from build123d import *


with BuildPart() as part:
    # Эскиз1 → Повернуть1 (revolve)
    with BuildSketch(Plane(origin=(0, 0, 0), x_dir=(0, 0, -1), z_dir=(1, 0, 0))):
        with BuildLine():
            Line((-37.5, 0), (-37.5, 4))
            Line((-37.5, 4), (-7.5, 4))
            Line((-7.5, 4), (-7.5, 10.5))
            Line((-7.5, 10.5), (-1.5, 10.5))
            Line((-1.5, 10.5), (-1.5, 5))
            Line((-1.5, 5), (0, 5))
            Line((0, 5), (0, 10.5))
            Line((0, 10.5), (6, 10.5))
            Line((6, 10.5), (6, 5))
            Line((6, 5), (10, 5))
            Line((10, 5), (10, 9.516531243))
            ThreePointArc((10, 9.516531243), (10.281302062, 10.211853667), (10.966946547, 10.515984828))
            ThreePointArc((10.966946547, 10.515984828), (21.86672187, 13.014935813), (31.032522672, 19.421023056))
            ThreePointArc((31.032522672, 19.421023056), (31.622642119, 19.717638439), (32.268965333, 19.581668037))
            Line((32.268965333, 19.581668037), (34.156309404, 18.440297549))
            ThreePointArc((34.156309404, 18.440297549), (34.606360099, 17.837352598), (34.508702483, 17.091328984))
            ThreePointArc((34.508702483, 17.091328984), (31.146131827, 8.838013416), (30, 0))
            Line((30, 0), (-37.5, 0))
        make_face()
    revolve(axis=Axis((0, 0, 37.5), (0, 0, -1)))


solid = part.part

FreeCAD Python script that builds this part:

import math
import FreeCAD as App
import Part
import Sketcher

doc = App.newDocument("Part")
params = doc.addObject("Spreadsheet::Sheet", "Params")
for row, (alias, value) in enumerate([
    ("sketch1_radius", "1 mm"),
    ("sketch1_width", "4 mm"),
    ("sketch1_height", "6 mm"),
    ("sketch1_height2", "30 mm"),
    ("sketch1_width2", "5.5 mm"),
    ("revolution_angle", "360 deg"),
], start=1):
    params.set(f"A{row}", alias)
    params.set(f"B{row}", "=" + value)
    params.setAlias(f"B{row}", alias)

body = doc.addObject("PartDesign::Body", "Body")

# Sketch on YZ plane
sketch1 = doc.addObject("Sketcher::SketchObject", "Sketch")
body.addObject(sketch1)
sketch1.AttachmentSupport = (doc.YZ_Plane, [""])
sketch1.MapMode = "FlatFace"
sketch1.addGeometry(Part.LineSegment(App.Vector(4, 37.5, 0), App.Vector(0, 37.5, 0)), False)
sketch1.addGeometry(Part.LineSegment(App.Vector(0, 37.5, 0), App.Vector(0, -30, 0)), False)
sketch1.addGeometry(Part.ArcOfCircle(Part.Circle(App.Vector(0, -64.6, 0), App.Vector(0, 0, 1), 34.6), math.radians(60), math.radians(90)), False)
sketch1.addGeometry(Part.ArcOfCircle(Part.Circle(App.Vector(17.6, -33.6, 0), App.Vector(0, 0, 1), 1), math.radians(-120), math.radians(-31)), False)
sketch1.addGeometry(Part.LineSegment(App.Vector(18.4, -34.2, 0), App.Vector(19.6, -32.3, 0)), False)
sketch1.addGeometry(Part.ArcOfCircle(Part.Circle(App.Vector(18.7, -31.8, 0), App.Vector(0, 0, 1), 1), math.radians(-31), math.radians(46)), False)
sketch1.addGeometry(Part.ArcOfCircle(Part.Circle(App.Vector(39.8, -10, 0), App.Vector(0, 0, 1), 29.3), math.radians(-178), math.radians(-134)), False)
sketch1.addGeometry(Part.ArcOfCircle(Part.Circle(App.Vector(9.5, -11, 0), App.Vector(0, 0, 1), 1), math.radians(2), math.radians(90)), False)
sketch1.addGeometry(Part.LineSegment(App.Vector(9.5, -10, 0), App.Vector(5, -10, 0)), False)
sketch1.addGeometry(Part.LineSegment(App.Vector(5, -10, 0), App.Vector(5, -6, 0)), False)
sketch1.addGeometry(Part.LineSegment(App.Vector(5, -6, 0), App.Vector(10.5, -6, 0)), False)
sketch1.addGeometry(Part.LineSegment(App.Vector(10.5, -6, 0), App.Vector(10.5, 0, 0)), False)
sketch1.addGeometry(Part.LineSegment(App.Vector(10.5, 0, 0), App.Vector(5, 0, 0)), False)
sketch1.addGeometry(Part.LineSegment(App.Vector(5, 0, 0), App.Vector(5, 1.5, 0)), False)
sketch1.addGeometry(Part.LineSegment(App.Vector(5, 1.5, 0), App.Vector(10.5, 1.5, 0)), False)
sketch1.addGeometry(Part.LineSegment(App.Vector(10.5, 1.5, 0), App.Vector(10.5, 7.5, 0)), False)
sketch1.addGeometry(Part.LineSegment(App.Vector(10.5, 7.5, 0), App.Vector(4, 7.5, 0)), False)
sketch1.addGeometry(Part.LineSegment(App.Vector(4, 7.5, 0), App.Vector(4, 37.5, 0)), False)
sketch1.addConstraint(Sketcher.Constraint("Coincident", 0, 2, 1, 1))
sketch1.addConstraint(Sketcher.Constraint("Coincident", 1, 2, 2, 2))
sketch1.addConstraint(Sketcher.Constraint("Tangent", 2, 1, 3, 1))
sketch1.addConstraint(Sketcher.Constraint("Tangent", 3, 2, 4, 1))
sketch1.addConstraint(Sketcher.Constraint("Tangent", 4, 2, 5, 1))
sketch1.addConstraint(Sketcher.Constraint("Tangent", 5, 2, 6, 2))
sketch1.addConstraint(Sketcher.Constraint("Tangent", 6, 1, 7, 1))
sketch1.addConstraint(Sketcher.Constraint("Tangent", 7, 2, 8, 1))
sketch1.addConstraint(Sketcher.Constraint("Coincident", 8, 2, 9, 1))
sketch1.addConstraint(Sketcher.Constraint("Coincident", 9, 2, 10, 1))
sketch1.addConstraint(Sketcher.Constraint("Coincident", 10, 2, 11, 1))
sketch1.addConstraint(Sketcher.Constraint("Coincident", 11, 2, 12, 1))
sketch1.addConstraint(Sketcher.Constraint("Coincident", 12, 2, 13, 1))
sketch1.addConstraint(Sketcher.Constraint("Coincident", 13, 2, 14, 1))
sketch1.addConstraint(Sketcher.Constraint("Coincident", 14, 2, 15, 1))
sketch1.addConstraint(Sketcher.Constraint("Coincident", 15, 2, 16, 1))
sketch1.addConstraint(Sketcher.Constraint("Coincident", 16, 2, 17, 1))
sketch1.addConstraint(Sketcher.Constraint("Coincident", 17, 2, 0, 1))
sketch1.addConstraint(Sketcher.Constraint("Horizontal", 0))
sketch1.addConstraint(Sketcher.Constraint("Vertical", 1))
sketch1.addConstraint(Sketcher.Constraint("Horizontal", 8))
sketch1.addConstraint(Sketcher.Constraint("Vertical", 9))
sketch1.addConstraint(Sketcher.Constraint("Horizontal", 10))
sketch1.addConstraint(Sketcher.Constraint("Vertical", 11))
sketch1.addConstraint(Sketcher.Constraint("Horizontal", 12))
sketch1.addConstraint(Sketcher.Constraint("Vertical", 13))
sketch1.addConstraint(Sketcher.Constraint("Horizontal", 14))
sketch1.addConstraint(Sketcher.Constraint("Vertical", 15))
sketch1.addConstraint(Sketcher.Constraint("Horizontal", 16))
sketch1.addConstraint(Sketcher.Constraint("Vertical", 17))
sketch1.addConstraint(Sketcher.Constraint("Equal", 3, 5))
sketch1.addConstraint(Sketcher.Constraint("Equal", 5, 7))
sketch1.addConstraint(Sketcher.Constraint("PointOnObject", 2, 3, -2))
sketch1.addConstraint(Sketcher.Constraint("PointOnObject", 0, 2, -2))
sketch1.addConstraint(Sketcher.Constraint("PointOnObject", 11, 2, -1))
sketch1.addConstraint(Sketcher.Constraint("Horizontal", 6, 3, 7, 2))
sketch1.addConstraint(Sketcher.Constraint("Vertical", 9, 2, 12, 2))
sketch1.addConstraint(Sketcher.Constraint("Vertical", 11, 2, 14, 2))
sketch1.addConstraint(Sketcher.Constraint("Equal", 0, 9))
sketch1.addConstraint(Sketcher.Constraint("Equal", 11, 15))
sketch1.addConstraint(Sketcher.Constraint("Radius", 3, 1.0))
sketch1.addConstraint(Sketcher.Constraint("DistanceX", 0, 2, 0, 1, 4.0))
sketch1.addConstraint(Sketcher.Constraint("DistanceY", 11, 1, 11, 2, 6.0))
sketch1.addConstraint(Sketcher.Constraint("DistanceY", 17, 1, 17, 2, 30.0))
sketch1.addConstraint(Sketcher.Constraint("DistanceX", 10, 1, 10, 2, 5.5))
sketch1.addConstraint(Sketcher.Constraint("DistanceX", 16, 2, 16, 1, 6.5))
sketch1.addConstraint(Sketcher.Constraint("DistanceY", 1, 2, 1, 1, 67.5))
sketch1.addConstraint(Sketcher.Constraint("DistanceY", 13, 1, 13, 2, 1.5))
sketch1.addConstraint(Sketcher.Constraint("Radius", 2, 34.648763))
sketch1.addConstraint(Sketcher.Constraint("Radius", 6, 29.254025))
sketch1.addConstraint(Sketcher.Constraint("DistanceX", 8, 2, 8, 1, 4.516531))
sketch1.addConstraint(Sketcher.Constraint("DistanceY", 3, 3, -1, 1, 33.638828))
sketch1.addConstraint(Sketcher.Constraint("DistanceY", 3, 2, -1, 1, 34.156309))
sketch1.setExpression("Constraints[40]", "Params.sketch1_radius")
sketch1.setExpression("Constraints[41]", "Params.sketch1_width")
sketch1.setExpression("Constraints[42]", "Params.sketch1_height")
sketch1.setExpression("Constraints[43]", "Params.sketch1_height2")
sketch1.setExpression("Constraints[44]", "Params.sketch1_width2")
revolution = doc.addObject("PartDesign::Revolution", "Revolution")
body.addObject(revolution)
revolution.Profile = sketch1
revolution.ReferenceAxis = (sketch1, ["V_Axis"])
revolution.setExpression("Angle", "Params.revolution_angle")

doc.recompute()
